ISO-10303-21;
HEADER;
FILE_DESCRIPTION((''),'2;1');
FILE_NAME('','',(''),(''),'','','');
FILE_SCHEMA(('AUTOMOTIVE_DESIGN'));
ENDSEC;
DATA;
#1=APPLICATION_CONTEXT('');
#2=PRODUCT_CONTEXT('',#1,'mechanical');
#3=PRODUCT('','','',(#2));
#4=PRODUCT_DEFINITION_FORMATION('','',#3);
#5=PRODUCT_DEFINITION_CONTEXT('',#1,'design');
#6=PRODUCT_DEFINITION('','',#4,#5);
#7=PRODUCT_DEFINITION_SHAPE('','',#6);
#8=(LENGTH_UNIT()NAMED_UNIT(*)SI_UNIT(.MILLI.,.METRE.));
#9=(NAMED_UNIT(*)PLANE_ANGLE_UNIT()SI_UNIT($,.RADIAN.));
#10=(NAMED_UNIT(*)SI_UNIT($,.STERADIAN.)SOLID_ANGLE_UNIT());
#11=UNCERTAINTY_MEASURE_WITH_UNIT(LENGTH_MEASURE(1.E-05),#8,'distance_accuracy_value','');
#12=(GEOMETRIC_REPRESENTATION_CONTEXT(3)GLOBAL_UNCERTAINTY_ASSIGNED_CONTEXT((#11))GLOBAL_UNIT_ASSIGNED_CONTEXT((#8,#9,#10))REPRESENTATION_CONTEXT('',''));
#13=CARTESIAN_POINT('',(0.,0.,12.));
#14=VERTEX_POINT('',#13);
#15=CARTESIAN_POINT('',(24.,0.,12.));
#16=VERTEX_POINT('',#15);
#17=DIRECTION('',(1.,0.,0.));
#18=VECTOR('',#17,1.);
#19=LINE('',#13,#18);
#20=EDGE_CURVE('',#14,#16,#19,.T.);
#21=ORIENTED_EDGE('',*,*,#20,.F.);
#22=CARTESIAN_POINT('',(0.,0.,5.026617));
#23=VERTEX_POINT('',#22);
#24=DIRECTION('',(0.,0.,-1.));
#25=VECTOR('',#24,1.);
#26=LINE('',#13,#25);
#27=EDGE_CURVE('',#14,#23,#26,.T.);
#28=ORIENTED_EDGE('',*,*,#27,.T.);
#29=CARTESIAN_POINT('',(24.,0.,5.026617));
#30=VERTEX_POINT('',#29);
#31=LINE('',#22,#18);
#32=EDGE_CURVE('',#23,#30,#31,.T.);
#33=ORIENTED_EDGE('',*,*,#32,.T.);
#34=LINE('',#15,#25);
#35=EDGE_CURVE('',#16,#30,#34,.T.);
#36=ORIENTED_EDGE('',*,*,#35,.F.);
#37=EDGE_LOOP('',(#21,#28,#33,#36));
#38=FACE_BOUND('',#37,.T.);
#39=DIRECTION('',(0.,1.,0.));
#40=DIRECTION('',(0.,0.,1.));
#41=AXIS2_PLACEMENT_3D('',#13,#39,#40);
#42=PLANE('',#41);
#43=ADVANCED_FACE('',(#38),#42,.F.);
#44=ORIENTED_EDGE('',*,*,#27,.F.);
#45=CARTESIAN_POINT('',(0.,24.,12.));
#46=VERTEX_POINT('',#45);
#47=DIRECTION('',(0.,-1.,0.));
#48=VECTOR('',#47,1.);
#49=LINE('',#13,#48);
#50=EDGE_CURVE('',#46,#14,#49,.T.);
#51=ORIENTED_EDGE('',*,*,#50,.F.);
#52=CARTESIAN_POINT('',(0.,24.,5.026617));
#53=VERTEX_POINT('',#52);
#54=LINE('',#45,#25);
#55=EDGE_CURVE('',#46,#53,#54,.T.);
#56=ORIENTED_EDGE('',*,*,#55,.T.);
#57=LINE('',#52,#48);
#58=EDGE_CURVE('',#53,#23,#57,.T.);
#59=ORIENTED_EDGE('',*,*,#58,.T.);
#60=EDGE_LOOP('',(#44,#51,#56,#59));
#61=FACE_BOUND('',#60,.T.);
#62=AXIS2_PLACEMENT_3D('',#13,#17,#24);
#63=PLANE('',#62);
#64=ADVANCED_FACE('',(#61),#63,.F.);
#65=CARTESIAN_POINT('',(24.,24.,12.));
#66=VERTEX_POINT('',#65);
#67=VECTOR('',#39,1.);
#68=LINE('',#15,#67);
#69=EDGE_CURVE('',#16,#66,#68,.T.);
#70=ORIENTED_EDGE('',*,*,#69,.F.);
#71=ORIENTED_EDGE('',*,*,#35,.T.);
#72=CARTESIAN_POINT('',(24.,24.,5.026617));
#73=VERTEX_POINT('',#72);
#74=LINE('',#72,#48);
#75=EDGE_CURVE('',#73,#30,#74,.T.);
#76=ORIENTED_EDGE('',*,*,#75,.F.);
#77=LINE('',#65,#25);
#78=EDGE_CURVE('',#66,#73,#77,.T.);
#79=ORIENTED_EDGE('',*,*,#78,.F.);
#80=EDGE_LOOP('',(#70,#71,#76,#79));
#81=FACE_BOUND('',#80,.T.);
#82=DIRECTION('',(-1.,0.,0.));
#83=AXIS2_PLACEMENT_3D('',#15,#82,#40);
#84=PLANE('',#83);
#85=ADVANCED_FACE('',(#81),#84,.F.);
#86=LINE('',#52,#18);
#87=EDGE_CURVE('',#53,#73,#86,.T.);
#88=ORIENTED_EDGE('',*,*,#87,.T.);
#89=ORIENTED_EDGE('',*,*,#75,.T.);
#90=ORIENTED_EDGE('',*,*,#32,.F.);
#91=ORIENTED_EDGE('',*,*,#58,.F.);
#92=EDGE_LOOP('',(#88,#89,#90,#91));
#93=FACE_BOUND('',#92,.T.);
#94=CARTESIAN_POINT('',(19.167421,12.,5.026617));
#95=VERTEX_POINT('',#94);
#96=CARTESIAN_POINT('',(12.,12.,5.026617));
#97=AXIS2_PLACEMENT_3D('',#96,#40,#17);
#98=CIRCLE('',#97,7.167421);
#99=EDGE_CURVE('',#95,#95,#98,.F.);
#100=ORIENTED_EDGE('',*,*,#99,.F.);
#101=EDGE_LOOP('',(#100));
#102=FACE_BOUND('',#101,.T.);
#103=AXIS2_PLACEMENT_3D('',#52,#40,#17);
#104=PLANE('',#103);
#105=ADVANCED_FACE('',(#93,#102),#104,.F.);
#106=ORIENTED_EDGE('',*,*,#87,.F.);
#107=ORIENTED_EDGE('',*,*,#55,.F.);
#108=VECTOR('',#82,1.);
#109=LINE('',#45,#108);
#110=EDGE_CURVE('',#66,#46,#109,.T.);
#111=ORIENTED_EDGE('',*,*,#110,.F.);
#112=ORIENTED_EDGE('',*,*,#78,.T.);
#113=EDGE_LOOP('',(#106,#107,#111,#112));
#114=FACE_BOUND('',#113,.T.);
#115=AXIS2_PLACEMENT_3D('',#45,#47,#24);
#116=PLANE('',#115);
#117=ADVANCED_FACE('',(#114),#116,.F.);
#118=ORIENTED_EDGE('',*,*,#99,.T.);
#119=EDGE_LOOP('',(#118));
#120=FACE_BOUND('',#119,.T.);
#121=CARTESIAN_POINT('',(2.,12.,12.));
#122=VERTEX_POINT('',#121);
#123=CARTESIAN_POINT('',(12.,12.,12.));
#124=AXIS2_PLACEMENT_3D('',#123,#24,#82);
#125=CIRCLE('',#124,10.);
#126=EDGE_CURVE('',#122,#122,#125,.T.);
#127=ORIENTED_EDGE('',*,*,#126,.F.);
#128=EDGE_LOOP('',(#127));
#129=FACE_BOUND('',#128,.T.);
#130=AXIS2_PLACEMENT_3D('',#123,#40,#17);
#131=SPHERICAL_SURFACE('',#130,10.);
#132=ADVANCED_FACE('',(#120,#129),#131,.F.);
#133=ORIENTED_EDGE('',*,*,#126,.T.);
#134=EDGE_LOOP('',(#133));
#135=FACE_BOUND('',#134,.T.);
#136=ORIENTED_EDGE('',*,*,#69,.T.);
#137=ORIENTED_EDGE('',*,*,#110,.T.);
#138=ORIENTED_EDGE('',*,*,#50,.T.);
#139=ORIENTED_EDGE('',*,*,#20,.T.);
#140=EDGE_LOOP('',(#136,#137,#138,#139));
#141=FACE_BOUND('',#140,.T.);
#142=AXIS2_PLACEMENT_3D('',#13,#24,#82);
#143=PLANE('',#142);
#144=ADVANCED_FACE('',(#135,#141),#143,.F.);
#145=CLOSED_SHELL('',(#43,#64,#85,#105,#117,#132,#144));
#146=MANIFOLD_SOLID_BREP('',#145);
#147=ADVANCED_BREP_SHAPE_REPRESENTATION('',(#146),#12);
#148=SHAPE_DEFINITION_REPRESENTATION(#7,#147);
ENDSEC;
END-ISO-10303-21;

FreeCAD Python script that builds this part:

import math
import FreeCAD as App
import Part
import Sketcher

doc = App.newDocument("Part")
body = doc.addObject("PartDesign::Body", "Body")

# Sketch on XY plane
sketch1 = body.newObject("Sketcher::SketchObject", "Sketch")
sketch1.AttachmentSupport = (doc.getObject("XY_Plane"), [""])
sketch1.MapMode = "FlatFace"
sketch1.addGeometry([
    Part.LineSegment(App.Vector(0, 24, 0), App.Vector(0, 0, 0)),
    Part.LineSegment(App.Vector(0, 0, 0), App.Vector(24, 0, 0)),
    Part.LineSegment(App.Vector(24, 0, 0), App.Vector(24, 24, 0)),
    Part.LineSegment(App.Vector(24, 24, 0), App.Vector(0, 24, 0)),
], False)
sketch1.addConstraint([
    Sketcher.Constraint("Coincident", 0, 2, 1, 1),
    Sketcher.Constraint("Coincident", 1, 2, 2, 1),
    Sketcher.Constraint("Coincident", 2, 2, 3, 1),
    Sketcher.Constraint("Coincident", 3, 2, 0, 1),
    Sketcher.Constraint("Vertical", 0),
    Sketcher.Constraint("Horizontal", 1),
    Sketcher.Constraint("Vertical", 2),
    Sketcher.Constraint("Horizontal", 3),
    Sketcher.Constraint("Coincident", 0, 2, -1, 1),
    Sketcher.Constraint("Equal", 3, 0),
    Sketcher.Constraint("DistanceX", 1, 1, 1, 2, 24.0),
])
pad1 = body.newObject("PartDesign::Pad", "Pad")
pad1.Profile = sketch1
pad1.Length = 12

# Sketch on XY plane
sketch2 = body.newObject("Sketcher::SketchObject", "Sketch001")
sketch2.AttachmentSupport = (doc.getObject("XY_Plane"), [""])
sketch2.MapMode = "FlatFace"
sketch2.AttachmentOffset = App.Placement(App.Vector(0, 0, 12), App.Rotation())
sketch2.addGeometry([
    Part.LineSegment(App.Vector(12, 2, 0), App.Vector(12, 22, 0)),
    Part.ArcOfCircle(Part.Circle(App.Vector(12, 12, 0), App.Vector(0, 0, 1), 10), math.radians(90), math.radians(270)),
], False)
sketch2.addGeometry(Part.LineSegment(App.Vector(12, 22, 0), App.Vector(12, 2, 0)), True)  # axis
sketch2.addConstraint([
    Sketcher.Constraint("Coincident", 0, 1, 1, 2),
    Sketcher.Constraint("Coincident", 1, 1, 0, 2),
    Sketcher.Constraint("Vertical", 0),
    Sketcher.Constraint("Vertical", 2),
    Sketcher.Constraint("Coincident", 2, 1, 1, 1),
    Sketcher.Constraint("Vertical", 1, 3, 0, 1),
    Sketcher.Constraint("Equal", 0, 2),
    Sketcher.Constraint("Radius", 1, 10.0),
    Sketcher.Constraint("DistanceX", -1, 1, 1, 3, 12.0),
    Sketcher.Constraint("DistanceY", -1, 1, 1, 3, 12.0),
])
groove = body.newObject("PartDesign::Groove", "Groove")
groove.Profile = sketch2
groove.ReferenceAxis = (sketch2, ["Axis0"])
groove.Angle = 360

# Sketch on YZ plane
sketch3 = body.newObject("Sketcher::SketchObject", "Sketch002")
sketch3.AttachmentSupport = (doc.getObject("YZ_Plane"), [""])
sketch3.MapMode = "FlatFace"
sketch3.AttachmentOffset = App.Placement(App.Vector(0, 0, 24), App.Rotation())
sketch3.addGeometry([
    Part.LineSegment(App.Vector(24, 0, 0), App.Vector(24, 5, 0)),
    Part.LineSegment(App.Vector(24, 5, 0), App.Vector(0, 5, 0)),
    Part.LineSegment(App.Vector(0, 5, 0), App.Vector(0, 0, 0)),
    Part.LineSegment(App.Vector(0, 0, 0), App.Vector(24, 0, 0)),
], False)
sketch3.addConstraint([
    Sketcher.Constraint("Coincident", 0, 2, 1, 1),
    Sketcher.Constraint("Coincident", 1, 2, 2, 1),
    Sketcher.Constraint("Coincident", 2, 2, 3, 1),
    Sketcher.Constraint("Coincident", 3, 2, 0, 1),
    Sketcher.Constraint("Vertical", 0),
    Sketcher.Constraint("Horizontal", 1),
    Sketcher.Constraint("Vertical", 2),
    Sketcher.Constraint("Horizontal", 3),
    Sketcher.Constraint("Coincident", 2, 2, -1, 1),
    Sketcher.Constraint("DistanceX", 1, 2, 1, 1, 24.0),
    Sketcher.Constraint("DistanceY", 0, 1, 0, 2, 5.026617),
])
pocket1 = body.newObject("PartDesign::Pocket", "Pocket")
pocket1.Profile = sketch3
pocket1.Type = "ThroughAll"

doc.recompute()
